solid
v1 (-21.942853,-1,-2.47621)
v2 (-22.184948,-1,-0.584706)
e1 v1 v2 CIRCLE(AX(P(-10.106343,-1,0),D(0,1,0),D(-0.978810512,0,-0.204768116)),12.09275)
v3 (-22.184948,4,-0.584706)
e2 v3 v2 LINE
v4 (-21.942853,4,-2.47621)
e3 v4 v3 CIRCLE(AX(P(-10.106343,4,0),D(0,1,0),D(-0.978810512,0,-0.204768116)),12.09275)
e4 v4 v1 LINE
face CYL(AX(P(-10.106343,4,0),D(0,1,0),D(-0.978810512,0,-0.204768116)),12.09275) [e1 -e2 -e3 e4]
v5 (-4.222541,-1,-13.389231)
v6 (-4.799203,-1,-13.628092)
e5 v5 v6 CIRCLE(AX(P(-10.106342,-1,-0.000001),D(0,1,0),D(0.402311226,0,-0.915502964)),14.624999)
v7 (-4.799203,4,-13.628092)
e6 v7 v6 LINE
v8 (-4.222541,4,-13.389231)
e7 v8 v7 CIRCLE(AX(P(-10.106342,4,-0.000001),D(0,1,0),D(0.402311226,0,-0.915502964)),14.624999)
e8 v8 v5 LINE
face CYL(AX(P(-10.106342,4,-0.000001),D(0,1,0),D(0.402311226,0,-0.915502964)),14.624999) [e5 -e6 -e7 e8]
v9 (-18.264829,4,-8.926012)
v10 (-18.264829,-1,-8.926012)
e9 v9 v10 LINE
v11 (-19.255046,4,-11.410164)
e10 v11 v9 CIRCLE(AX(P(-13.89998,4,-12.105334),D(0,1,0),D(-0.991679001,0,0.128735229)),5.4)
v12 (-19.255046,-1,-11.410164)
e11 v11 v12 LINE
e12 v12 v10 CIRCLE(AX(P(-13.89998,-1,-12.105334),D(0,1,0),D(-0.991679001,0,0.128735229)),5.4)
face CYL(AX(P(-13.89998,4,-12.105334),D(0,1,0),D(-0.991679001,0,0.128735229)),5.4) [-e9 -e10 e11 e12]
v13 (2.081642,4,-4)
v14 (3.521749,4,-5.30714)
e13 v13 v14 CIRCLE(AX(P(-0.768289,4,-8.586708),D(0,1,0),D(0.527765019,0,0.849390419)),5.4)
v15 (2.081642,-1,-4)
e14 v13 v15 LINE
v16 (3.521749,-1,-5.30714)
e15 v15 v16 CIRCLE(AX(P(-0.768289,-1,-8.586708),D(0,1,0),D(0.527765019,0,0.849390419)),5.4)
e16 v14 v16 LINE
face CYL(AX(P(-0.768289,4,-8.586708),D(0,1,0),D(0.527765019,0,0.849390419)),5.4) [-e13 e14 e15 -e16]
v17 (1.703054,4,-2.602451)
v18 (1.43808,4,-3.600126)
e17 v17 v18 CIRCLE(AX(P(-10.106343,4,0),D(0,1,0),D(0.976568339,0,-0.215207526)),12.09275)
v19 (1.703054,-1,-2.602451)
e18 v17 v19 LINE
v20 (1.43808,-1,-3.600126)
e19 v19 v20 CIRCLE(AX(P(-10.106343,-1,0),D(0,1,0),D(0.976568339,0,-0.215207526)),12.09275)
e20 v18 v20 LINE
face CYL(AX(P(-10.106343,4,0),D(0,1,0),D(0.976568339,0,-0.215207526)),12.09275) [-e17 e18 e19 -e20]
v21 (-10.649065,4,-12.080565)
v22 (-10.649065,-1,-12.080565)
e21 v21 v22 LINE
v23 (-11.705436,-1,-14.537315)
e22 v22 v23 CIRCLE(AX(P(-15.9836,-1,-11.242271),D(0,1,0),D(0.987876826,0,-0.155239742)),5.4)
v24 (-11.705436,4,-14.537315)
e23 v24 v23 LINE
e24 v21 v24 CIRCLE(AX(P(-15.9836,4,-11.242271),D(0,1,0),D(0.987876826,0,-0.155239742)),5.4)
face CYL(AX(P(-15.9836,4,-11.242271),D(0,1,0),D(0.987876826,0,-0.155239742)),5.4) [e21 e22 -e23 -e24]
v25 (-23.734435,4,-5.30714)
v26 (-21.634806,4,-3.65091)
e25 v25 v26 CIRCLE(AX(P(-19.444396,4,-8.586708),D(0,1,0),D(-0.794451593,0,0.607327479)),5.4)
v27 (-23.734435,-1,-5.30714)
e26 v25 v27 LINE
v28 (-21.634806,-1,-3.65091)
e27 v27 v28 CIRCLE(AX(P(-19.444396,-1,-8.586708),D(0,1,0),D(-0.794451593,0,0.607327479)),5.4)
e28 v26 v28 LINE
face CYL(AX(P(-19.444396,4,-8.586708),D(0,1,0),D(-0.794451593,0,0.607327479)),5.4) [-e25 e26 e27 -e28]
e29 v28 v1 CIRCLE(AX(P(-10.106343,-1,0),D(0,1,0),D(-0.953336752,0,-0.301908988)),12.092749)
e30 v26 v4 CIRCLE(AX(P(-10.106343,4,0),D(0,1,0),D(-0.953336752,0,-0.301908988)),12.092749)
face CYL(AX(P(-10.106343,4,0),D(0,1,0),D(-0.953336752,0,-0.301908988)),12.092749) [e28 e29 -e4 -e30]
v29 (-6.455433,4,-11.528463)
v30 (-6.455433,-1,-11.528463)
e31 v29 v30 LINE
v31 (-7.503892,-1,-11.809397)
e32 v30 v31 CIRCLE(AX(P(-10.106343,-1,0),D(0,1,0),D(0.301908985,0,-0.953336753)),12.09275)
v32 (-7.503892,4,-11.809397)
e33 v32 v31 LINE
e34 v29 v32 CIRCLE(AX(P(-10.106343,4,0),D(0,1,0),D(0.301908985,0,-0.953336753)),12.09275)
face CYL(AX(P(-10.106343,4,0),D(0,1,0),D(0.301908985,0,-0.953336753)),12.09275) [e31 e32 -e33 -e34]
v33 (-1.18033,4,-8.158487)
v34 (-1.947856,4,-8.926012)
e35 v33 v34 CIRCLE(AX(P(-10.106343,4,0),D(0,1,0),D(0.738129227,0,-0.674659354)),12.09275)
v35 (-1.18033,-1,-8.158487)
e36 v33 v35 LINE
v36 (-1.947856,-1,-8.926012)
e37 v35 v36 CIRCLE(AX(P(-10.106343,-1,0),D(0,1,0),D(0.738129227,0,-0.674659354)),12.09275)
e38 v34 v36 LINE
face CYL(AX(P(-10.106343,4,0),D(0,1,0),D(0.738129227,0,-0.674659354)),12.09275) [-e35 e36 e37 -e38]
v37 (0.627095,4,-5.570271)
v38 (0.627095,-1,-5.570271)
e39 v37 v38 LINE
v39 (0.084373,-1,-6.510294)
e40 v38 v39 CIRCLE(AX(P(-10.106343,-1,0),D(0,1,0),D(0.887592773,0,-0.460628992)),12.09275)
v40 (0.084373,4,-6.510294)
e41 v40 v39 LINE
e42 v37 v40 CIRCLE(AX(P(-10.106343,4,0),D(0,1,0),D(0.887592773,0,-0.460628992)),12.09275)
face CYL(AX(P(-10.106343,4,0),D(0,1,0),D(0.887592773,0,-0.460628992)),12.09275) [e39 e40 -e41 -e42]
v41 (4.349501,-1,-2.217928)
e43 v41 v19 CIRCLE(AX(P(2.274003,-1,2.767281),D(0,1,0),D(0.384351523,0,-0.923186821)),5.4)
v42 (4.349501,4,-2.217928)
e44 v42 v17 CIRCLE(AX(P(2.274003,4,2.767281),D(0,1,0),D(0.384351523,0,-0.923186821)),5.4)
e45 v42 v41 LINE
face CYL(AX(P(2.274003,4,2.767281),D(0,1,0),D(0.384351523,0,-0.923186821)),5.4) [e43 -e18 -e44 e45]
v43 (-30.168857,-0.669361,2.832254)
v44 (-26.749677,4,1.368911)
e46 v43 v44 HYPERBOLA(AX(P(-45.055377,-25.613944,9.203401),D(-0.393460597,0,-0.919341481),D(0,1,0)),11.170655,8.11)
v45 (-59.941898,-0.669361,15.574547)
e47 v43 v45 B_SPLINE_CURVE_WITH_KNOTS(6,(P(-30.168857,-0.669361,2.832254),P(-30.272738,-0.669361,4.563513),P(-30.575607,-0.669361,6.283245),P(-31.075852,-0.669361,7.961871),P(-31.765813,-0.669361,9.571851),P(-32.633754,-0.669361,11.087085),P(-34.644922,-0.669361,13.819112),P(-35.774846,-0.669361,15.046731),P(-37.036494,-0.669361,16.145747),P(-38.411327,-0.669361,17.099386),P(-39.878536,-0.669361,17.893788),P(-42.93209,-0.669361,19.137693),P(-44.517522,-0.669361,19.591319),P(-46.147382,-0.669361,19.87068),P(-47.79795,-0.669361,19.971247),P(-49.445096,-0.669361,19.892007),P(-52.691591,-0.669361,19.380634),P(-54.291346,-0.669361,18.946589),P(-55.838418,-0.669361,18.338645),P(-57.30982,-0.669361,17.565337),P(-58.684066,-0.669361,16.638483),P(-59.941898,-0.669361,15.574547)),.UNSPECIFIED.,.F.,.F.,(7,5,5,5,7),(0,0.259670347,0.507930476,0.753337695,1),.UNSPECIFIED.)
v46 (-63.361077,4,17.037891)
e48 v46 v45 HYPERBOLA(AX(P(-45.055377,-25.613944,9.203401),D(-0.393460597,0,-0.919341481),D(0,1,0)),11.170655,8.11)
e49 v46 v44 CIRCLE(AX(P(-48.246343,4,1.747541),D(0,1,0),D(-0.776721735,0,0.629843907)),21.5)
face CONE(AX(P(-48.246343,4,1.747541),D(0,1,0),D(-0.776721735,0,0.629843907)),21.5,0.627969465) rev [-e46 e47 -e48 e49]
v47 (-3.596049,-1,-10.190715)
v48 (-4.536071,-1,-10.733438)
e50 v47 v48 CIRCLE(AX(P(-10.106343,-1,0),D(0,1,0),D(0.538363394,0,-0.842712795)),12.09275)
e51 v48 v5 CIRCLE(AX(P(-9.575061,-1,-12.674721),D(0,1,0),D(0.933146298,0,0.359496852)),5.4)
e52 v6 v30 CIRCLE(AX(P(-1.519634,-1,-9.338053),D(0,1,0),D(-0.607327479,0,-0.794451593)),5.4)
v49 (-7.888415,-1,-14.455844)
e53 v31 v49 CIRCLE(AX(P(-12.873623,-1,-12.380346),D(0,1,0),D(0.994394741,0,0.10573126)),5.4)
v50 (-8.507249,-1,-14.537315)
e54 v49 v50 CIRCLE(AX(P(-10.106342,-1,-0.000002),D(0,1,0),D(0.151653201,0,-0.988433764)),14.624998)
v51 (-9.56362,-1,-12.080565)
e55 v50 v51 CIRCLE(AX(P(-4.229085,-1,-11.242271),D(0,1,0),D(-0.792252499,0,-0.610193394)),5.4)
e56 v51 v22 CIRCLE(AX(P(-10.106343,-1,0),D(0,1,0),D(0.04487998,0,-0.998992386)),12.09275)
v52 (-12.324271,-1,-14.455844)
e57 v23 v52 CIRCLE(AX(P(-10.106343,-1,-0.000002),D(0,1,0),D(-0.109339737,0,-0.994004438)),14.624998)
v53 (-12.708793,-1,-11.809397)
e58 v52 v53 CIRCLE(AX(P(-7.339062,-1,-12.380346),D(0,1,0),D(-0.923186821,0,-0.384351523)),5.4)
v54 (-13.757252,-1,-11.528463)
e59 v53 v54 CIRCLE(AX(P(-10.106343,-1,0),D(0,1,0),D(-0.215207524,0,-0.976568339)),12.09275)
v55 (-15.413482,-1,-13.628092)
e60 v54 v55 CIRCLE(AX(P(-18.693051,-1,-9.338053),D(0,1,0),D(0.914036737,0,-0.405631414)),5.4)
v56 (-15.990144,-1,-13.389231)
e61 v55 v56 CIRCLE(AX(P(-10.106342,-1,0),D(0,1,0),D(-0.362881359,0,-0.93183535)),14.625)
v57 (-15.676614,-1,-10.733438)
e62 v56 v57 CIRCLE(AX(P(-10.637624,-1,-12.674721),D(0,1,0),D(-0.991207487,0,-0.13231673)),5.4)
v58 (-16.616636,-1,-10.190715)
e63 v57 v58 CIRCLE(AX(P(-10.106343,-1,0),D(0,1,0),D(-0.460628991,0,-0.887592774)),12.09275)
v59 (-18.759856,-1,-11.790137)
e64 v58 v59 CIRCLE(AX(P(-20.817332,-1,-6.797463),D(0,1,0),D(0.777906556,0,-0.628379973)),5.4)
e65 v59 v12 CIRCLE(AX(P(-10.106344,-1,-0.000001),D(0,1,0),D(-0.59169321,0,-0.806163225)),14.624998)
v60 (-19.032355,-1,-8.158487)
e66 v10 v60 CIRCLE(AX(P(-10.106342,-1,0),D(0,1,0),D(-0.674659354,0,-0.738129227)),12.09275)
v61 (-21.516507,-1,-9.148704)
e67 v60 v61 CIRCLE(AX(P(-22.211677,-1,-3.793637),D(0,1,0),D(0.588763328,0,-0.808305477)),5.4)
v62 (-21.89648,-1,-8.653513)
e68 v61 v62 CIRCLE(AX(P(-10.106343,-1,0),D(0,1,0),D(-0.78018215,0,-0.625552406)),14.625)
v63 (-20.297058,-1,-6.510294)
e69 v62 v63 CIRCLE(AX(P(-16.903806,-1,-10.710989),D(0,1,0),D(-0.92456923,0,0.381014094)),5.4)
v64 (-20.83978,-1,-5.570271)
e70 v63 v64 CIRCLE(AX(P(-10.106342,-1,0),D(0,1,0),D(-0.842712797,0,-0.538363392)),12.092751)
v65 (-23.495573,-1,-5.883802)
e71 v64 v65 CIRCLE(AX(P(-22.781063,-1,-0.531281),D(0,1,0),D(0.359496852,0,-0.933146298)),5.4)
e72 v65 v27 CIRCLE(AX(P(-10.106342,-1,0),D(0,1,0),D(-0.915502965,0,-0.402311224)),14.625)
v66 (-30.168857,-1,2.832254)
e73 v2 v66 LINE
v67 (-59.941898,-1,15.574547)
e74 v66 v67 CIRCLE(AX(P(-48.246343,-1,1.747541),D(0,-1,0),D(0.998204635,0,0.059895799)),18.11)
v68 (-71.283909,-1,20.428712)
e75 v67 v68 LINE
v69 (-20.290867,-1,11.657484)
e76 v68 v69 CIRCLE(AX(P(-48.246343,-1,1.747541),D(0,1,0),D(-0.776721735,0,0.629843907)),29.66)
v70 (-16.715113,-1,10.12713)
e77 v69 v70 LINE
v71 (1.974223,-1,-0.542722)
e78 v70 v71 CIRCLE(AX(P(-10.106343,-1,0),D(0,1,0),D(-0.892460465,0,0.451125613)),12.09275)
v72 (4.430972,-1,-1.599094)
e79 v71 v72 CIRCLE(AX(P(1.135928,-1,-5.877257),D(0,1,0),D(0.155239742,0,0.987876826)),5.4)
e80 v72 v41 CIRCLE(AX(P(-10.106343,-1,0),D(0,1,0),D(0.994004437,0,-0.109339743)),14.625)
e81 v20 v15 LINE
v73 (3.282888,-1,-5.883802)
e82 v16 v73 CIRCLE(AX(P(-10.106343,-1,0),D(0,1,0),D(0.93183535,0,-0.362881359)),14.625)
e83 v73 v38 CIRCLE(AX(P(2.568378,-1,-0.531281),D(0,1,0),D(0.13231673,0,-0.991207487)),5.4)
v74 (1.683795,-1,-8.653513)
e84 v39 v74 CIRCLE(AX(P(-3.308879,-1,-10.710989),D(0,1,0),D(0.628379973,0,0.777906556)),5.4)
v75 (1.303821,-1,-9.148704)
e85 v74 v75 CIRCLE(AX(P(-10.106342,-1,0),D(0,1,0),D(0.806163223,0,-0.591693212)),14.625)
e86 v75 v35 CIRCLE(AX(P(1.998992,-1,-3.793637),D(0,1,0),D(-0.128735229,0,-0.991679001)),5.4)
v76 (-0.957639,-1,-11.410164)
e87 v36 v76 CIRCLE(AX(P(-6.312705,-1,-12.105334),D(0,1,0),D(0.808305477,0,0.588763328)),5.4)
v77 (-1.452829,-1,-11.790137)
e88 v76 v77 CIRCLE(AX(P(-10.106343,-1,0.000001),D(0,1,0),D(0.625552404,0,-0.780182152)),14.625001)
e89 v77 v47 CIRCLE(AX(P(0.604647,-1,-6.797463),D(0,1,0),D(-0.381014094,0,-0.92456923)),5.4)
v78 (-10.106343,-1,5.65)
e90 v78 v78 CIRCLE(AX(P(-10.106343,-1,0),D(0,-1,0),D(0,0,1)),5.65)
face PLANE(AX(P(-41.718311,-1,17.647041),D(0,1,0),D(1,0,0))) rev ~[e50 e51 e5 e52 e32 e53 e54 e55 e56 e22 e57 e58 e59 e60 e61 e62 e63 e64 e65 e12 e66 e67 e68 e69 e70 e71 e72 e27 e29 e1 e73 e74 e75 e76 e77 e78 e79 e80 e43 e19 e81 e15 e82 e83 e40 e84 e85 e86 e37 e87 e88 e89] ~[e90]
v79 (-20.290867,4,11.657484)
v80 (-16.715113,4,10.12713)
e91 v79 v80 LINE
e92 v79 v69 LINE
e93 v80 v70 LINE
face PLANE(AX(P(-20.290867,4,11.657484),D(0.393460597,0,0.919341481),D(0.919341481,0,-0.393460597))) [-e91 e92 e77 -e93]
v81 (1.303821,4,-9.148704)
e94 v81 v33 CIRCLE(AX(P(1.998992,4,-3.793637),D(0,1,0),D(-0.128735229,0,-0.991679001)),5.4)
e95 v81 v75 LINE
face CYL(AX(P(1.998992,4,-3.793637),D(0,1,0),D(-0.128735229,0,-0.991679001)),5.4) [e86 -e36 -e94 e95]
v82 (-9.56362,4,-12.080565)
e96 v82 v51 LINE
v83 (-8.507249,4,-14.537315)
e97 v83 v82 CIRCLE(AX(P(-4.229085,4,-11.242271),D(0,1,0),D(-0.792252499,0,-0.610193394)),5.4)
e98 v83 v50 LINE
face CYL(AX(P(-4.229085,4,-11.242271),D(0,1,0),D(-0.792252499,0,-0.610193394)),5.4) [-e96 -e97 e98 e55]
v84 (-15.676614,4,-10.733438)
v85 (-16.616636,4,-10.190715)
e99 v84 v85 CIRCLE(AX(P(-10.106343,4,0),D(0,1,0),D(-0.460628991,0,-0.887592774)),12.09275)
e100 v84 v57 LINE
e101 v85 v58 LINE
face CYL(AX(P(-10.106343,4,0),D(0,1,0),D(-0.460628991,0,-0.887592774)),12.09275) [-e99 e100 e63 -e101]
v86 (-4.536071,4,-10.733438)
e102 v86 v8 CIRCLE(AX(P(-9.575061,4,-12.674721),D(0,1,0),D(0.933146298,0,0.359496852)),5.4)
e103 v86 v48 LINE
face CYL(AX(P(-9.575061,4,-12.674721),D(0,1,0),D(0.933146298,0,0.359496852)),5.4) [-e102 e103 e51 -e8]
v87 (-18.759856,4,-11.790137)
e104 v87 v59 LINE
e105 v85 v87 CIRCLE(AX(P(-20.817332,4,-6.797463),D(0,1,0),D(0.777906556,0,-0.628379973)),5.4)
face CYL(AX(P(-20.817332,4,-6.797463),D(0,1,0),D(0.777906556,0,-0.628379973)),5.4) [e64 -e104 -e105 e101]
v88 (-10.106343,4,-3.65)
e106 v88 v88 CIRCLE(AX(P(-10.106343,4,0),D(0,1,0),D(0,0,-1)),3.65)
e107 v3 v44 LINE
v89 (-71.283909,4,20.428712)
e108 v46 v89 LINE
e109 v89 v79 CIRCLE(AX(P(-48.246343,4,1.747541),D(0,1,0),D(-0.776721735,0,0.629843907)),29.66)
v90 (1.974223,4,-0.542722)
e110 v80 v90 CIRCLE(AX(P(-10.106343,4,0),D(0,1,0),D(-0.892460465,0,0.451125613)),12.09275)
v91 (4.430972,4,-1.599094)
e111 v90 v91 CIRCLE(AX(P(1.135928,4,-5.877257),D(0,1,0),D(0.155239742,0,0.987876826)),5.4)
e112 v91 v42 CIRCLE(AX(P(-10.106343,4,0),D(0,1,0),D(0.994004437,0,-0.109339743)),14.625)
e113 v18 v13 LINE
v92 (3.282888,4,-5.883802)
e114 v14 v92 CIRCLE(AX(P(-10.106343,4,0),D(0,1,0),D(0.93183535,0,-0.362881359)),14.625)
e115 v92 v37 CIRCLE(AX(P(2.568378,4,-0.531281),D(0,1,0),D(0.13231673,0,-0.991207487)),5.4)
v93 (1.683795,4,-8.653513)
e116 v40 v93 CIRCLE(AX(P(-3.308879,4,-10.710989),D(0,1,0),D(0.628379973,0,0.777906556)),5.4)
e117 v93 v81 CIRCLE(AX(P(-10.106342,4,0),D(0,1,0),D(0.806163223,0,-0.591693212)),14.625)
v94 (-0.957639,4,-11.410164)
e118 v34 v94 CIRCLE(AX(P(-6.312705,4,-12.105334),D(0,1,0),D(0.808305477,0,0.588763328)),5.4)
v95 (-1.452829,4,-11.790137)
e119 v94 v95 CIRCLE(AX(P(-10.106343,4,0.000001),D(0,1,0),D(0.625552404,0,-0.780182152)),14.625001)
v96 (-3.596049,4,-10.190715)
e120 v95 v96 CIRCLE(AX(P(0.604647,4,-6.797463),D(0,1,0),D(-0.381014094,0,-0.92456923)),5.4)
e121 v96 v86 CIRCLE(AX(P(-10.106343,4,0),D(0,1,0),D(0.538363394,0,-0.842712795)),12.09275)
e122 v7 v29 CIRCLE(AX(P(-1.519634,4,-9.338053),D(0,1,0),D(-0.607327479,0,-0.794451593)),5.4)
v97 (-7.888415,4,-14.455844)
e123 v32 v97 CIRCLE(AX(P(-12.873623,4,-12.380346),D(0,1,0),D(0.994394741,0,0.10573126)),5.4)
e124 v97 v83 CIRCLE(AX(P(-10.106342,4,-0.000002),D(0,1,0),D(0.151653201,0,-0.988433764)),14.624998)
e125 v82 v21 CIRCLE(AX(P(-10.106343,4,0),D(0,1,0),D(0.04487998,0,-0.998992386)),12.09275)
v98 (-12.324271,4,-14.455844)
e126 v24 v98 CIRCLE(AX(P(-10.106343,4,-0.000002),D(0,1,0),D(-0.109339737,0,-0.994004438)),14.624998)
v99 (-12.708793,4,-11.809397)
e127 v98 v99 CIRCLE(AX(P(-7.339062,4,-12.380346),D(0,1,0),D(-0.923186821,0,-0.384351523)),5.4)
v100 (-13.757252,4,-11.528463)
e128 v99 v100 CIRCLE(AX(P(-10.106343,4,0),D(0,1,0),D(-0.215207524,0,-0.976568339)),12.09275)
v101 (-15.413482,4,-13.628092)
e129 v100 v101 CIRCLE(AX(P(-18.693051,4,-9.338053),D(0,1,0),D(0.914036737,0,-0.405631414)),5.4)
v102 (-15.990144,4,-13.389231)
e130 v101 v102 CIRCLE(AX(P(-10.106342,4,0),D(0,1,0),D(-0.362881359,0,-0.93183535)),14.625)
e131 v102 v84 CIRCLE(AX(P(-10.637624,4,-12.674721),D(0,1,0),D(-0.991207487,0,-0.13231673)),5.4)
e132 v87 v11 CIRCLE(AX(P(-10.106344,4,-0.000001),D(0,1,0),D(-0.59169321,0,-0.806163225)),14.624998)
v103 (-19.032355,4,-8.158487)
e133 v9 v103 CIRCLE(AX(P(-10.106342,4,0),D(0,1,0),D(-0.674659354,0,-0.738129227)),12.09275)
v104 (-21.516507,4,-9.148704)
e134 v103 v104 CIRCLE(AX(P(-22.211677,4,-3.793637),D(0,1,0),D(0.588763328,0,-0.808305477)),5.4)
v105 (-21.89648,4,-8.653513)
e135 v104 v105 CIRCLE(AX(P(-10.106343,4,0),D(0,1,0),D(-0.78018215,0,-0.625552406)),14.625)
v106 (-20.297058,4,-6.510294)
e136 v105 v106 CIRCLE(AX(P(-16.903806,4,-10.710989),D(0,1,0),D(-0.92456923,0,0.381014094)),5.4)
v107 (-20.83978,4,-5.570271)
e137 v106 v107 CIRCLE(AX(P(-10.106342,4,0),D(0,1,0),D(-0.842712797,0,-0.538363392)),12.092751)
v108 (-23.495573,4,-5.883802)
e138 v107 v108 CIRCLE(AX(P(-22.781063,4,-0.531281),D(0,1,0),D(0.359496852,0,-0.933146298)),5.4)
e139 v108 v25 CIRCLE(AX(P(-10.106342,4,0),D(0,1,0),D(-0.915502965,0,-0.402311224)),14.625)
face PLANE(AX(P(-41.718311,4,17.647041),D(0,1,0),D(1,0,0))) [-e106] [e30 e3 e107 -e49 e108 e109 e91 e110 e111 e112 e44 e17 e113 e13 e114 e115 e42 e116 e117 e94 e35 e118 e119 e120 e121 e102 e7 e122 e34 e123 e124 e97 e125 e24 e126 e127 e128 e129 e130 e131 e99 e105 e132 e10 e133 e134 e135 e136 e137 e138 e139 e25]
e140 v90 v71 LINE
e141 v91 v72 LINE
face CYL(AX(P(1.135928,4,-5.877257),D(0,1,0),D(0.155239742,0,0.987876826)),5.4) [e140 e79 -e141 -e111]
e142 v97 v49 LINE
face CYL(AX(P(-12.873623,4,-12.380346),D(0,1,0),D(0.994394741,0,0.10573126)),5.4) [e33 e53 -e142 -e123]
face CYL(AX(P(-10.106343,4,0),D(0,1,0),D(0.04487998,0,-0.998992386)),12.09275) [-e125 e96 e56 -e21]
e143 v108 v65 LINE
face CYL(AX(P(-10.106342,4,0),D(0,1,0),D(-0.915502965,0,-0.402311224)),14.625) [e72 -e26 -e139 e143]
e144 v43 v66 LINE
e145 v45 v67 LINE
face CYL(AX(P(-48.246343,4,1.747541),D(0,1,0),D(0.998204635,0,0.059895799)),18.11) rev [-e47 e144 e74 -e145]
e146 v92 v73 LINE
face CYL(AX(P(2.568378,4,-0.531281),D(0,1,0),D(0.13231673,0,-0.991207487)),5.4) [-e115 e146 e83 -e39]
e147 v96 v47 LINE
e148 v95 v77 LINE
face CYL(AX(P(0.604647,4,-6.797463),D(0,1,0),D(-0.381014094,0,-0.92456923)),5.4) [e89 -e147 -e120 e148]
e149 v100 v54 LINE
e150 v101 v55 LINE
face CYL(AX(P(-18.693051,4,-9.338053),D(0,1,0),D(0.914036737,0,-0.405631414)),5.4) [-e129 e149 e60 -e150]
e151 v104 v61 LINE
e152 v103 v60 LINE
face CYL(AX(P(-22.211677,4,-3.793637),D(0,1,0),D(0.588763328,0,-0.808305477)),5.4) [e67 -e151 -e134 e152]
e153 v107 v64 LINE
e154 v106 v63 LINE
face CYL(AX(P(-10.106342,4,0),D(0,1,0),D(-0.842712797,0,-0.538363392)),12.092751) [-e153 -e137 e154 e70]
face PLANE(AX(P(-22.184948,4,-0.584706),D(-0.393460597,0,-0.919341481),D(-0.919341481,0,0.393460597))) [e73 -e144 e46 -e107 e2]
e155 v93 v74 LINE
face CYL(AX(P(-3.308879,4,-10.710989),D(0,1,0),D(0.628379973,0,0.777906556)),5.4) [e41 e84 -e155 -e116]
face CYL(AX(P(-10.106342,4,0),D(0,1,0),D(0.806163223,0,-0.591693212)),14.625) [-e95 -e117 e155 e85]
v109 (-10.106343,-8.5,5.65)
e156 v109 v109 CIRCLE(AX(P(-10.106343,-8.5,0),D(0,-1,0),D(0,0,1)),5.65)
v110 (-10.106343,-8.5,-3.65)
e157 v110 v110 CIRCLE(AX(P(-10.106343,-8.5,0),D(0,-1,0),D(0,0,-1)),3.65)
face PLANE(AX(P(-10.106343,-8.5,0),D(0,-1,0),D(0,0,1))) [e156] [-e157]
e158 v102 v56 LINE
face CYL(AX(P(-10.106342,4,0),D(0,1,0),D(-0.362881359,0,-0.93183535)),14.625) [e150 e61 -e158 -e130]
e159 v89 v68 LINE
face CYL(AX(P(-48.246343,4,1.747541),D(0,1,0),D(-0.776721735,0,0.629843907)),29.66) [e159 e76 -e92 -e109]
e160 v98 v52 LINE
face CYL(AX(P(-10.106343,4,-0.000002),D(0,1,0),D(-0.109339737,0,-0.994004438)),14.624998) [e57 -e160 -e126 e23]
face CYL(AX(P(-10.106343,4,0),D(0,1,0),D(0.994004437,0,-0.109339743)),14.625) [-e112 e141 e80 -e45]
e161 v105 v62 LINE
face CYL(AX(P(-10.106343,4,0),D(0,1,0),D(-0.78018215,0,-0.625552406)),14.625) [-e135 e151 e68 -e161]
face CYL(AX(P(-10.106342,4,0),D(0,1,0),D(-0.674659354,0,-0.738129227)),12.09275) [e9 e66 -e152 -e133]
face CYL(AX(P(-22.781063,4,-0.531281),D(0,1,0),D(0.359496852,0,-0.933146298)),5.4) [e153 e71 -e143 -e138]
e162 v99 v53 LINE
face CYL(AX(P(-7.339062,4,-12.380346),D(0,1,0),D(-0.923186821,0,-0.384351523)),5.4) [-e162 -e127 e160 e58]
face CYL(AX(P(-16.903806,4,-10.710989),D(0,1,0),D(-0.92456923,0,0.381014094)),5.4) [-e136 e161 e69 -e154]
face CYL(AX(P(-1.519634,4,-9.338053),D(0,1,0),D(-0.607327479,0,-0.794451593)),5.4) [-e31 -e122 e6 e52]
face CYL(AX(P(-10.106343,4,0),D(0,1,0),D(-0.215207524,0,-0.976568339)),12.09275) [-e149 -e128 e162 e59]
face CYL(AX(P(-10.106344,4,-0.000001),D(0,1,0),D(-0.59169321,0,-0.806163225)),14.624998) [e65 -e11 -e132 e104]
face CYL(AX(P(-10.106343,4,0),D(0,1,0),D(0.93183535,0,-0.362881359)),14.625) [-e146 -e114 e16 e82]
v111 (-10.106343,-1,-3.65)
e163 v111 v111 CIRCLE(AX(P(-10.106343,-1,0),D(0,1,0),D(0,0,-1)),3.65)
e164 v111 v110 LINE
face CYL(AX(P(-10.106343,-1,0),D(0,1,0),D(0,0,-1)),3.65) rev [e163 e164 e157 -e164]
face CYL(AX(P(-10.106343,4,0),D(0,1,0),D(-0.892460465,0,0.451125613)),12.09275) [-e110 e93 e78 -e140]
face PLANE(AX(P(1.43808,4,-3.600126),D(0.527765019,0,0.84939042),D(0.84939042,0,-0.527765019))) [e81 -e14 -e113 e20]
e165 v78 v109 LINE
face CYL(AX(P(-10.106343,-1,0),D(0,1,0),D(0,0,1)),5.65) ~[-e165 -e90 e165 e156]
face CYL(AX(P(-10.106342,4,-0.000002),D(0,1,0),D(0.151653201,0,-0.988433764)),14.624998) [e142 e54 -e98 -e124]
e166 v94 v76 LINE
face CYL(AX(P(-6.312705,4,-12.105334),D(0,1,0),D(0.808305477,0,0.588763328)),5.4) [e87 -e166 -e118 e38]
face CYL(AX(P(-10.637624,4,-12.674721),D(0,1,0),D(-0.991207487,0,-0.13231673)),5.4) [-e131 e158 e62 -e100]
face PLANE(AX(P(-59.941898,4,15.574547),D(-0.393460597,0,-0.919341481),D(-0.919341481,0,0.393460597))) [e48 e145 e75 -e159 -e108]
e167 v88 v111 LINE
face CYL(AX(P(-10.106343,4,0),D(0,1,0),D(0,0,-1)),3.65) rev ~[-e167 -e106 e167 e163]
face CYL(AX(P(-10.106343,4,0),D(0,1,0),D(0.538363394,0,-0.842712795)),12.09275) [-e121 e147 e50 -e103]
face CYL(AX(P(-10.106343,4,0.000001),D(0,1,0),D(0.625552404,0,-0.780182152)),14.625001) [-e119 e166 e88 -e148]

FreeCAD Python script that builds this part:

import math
import FreeCAD as App
import Part
import Sketcher

V = App.Vector
Q = App.Units.Quantity

doc = App.newDocument("Part")
params = doc.addObject("Spreadsheet::Sheet", "Params")
for row, (alias, value) in enumerate([
    ("sketch1_diameter", "7.3 mm"),
    ("sketch1_radius", "5.4 mm"),
    ("pad1_length", "5 mm"),
    ("sketch2_diameter", "11.3 mm"),
    ("sketch2_diameter2", "7.3 mm"),
    ("pad2_length", "7.5 mm"),
    ("sketch3_radius", "18.11 mm"),
    ("sketch3_radius2", "29.66 mm"),
    ("pad3_length", "5 mm"),
    ("sketch4_width", "3.8 mm"),
    ("groove_angle", "360 deg"),
], start=1):
    params.set(f"A{row}", alias)
    params.set(f"B{row}", "=" + value)
    params.setAlias(f"B{row}", alias)

body = doc.addObject("PartDesign::Body", "Body")

# Sketch on XZ plane
sketch1 = body.newObject("Sketcher::SketchObject", "Sketch")
sketch1.AttachmentSupport = (doc.getObject("XZ_Plane"), [""])
sketch1.MapMode = "FlatFace"
sketch1.AttachmentOffset = App.Placement(V(0, 0, -4), App.Rotation())
sketch1.addGeometry(Part.LineSegment(V(1.4, -3.6, 0), V(2.1, -4, 0)), False)
sketch1.addGeometry(Part.ArcOfCircle(Part.Circle(V(-0.8, -8.6, 0), V(0, 0, 1), 5.4), math.radians(37), math.radians(58)), False)
sketch1.addGeometry(Part.ArcOfCircle(Part.Circle(V(-10.1, 0, 0), V(0, 0, 1), 14.6), math.radians(-23.72), math.radians(-21.28)), False)
sketch1.addGeometry(Part.ArcOfCircle(Part.Circle(V(2.6, -0.5, 0), V(0, 0, 1), 5.4), math.radians(-111), math.radians(-82)), False)
sketch1.addGeometry(Part.ArcOfCircle(Part.Circle(V(-10.1, 0, 0), V(0, 0, 1), 12.1), math.radians(-32.57), math.radians(-27.43)), False)
sketch1.addGeometry(Part.ArcOfCircle(Part.Circle(V(-3.3, -10.7, 0), V(0, 0, 1), 5.4), math.radians(22), math.radians(51)), False)
sketch1.addGeometry(Part.ArcOfCircle(Part.Circle(V(-10.1, 0, 0), V(0, 0, 1), 14.6), math.radians(-38.72), math.radians(-36.28)), False)
sketch1.addGeometry(Part.ArcOfCircle(Part.Circle(V(2, -3.8, 0), V(0, 0, 1), 5.4), math.radians(-126), math.radians(-97)), False)
sketch1.addGeometry(Part.ArcOfCircle(Part.Circle(V(-10.1, 0, 0), V(0, 0, 1), 12.1), math.radians(-47.57), math.radians(-42.43)), False)
sketch1.addGeometry(Part.ArcOfCircle(Part.Circle(V(-6.3, -12.1, 0), V(0, 0, 1), 5.4), math.radians(7), math.radians(36)), False)
sketch1.addGeometry(Part.ArcOfCircle(Part.Circle(V(-10.1, 0, 0), V(0, 0, 1), 14.6), math.radians(-53.72), math.radians(-51.28)), False)
sketch1.addGeometry(Part.ArcOfCircle(Part.Circle(V(0.6, -6.8, 0), V(0, 0, 1), 5.4), math.radians(-141), math.radians(-112)), False)
sketch1.addGeometry(Part.ArcOfCircle(Part.Circle(V(-10.1, 0, 0), V(0, 0, 1), 12.1), math.radians(-62.57), math.radians(-57.43)), False)
sketch1.addGeometry(Part.ArcOfCircle(Part.Circle(V(-9.6, -12.7, 0), V(0, 0, 1), 5.4), math.radians(-8), math.radians(21)), False)
sketch1.addGeometry(Part.ArcOfCircle(Part.Circle(V(-10.1, 0, 0), V(0, 0, 1), 14.6), math.radians(-68.72), math.radians(-66.28)), False)
sketch1.addGeometry(Part.ArcOfCircle(Part.Circle(V(-1.5, -9.3, 0), V(0, 0, 1), 5.4), math.radians(-156), math.radians(-127)), False)
sketch1.addGeometry(Part.ArcOfCircle(Part.Circle(V(-10.1, 0, 0), V(0, 0, 1), 12.1), math.radians(-77.57), math.radians(-72.43)), False)
sketch1.addGeometry(Part.ArcOfCircle(Part.Circle(V(-12.9, -12.4, 0), V(0, 0, 1), 5.4), math.radians(-23), math.radians(6)), False)
sketch1.addGeometry(Part.ArcOfCircle(Part.Circle(V(-10.1, 0, 0), V(0, 0, 1), 14.6), math.radians(-83.72), math.radians(-81.28)), False)
sketch1.addGeometry(Part.ArcOfCircle(Part.Circle(V(-4.2, -11.2, 0), V(0, 0, 1), 5.4), math.radians(-171), math.radians(-142)), False)
sketch1.addGeometry(Part.ArcOfCircle(Part.Circle(V(-10.1, 0, 0), V(0, 0, 1), 12.1), math.radians(-92.57), math.radians(-87.43)), False)
sketch1.addGeometry(Part.ArcOfCircle(Part.Circle(V(-16, -11.2, 0), V(0, 0, 1), 5.4), math.radians(-38), math.radians(-9)), False)
sketch1.addGeometry(Part.ArcOfCircle(Part.Circle(V(-10.1, 0, 0), V(0, 0, 1), 14.6), math.radians(-98.72), math.radians(-96.28)), False)
sketch1.addGeometry(Part.ArcOfCircle(Part.Circle(V(-7.3, -12.4, 0), V(0, 0, 1), 5.4), math.radians(174), math.radians(203)), False)
sketch1.addGeometry(Part.ArcOfCircle(Part.Circle(V(-10.1, 0, 0), V(0, 0, 1), 12.1), math.radians(-107.57), math.radians(-102.43)), False)
sketch1.addGeometry(Part.ArcOfCircle(Part.Circle(V(-18.7, -9.3, 0), V(0, 0, 1), 5.4), math.radians(-53), math.radians(-24)), False)
sketch1.addGeometry(Part.ArcOfCircle(Part.Circle(V(-10.1, 0, 0), V(0, 0, 1), 14.6), math.radians(-113.72), math.radians(-111.28)), False)
sketch1.addGeometry(Part.ArcOfCircle(Part.Circle(V(-10.6, -12.7, 0), V(0, 0, 1), 5.4), math.radians(159), math.radians(188)), False)
sketch1.addGeometry(Part.ArcOfCircle(Part.Circle(V(-10.1, 0, 0), V(0, 0, 1), 12.1), math.radians(-122.57), math.radians(-117.43)), False)
sketch1.addGeometry(Part.ArcOfCircle(Part.Circle(V(-20.8, -6.8, 0), V(0, 0, 1), 5.4), math.radians(-68), math.radians(-39)), False)
sketch1.addGeometry(Part.ArcOfCircle(Part.Circle(V(-10.1, 0, 0), V(0, 0, 1), 14.6), math.radians(-128.72), math.radians(-126.28)), False)
sketch1.addGeometry(Part.ArcOfCircle(Part.Circle(V(-13.9, -12.1, 0), V(0, 0, 1), 5.4), math.radians(144), math.radians(173)), False)
sketch1.addGeometry(Part.ArcOfCircle(Part.Circle(V(-10.1, 0, 0), V(0, 0, 1), 12.1), math.radians(-137.57), math.radians(-132.43)), False)
sketch1.addGeometry(Part.ArcOfCircle(Part.Circle(V(-22.2, -3.8, 0), V(0, 0, 1), 5.4), math.radians(-83), math.radians(-54)), False)
sketch1.addGeometry(Part.ArcOfCircle(Part.Circle(V(-10.1, 0, 0), V(0, 0, 1), 14.6), math.radians(-143.72), math.radians(-141.28)), False)
sketch1.addGeometry(Part.ArcOfCircle(Part.Circle(V(-16.9, -10.7, 0), V(0, 0, 1), 5.4), math.radians(129), math.radians(158)), False)
sketch1.addGeometry(Part.ArcOfCircle(Part.Circle(V(-10.1, 0, 0), V(0, 0, 1), 12.1), math.radians(-152.57), math.radians(-147.43)), False)
sketch1.addGeometry(Part.ArcOfCircle(Part.Circle(V(-22.8, -0.5, 0), V(0, 0, 1), 5.4), math.radians(-98), math.radians(-69)), False)
sketch1.addGeometry(Part.ArcOfCircle(Part.Circle(V(-10.1, 0, 0), V(0, 0, 1), 14.6), math.radians(-158.72), math.radians(-156.28)), False)
sketch1.addGeometry(Part.ArcOfCircle(Part.Circle(V(-19.4, -8.6, 0), V(0, 0, 1), 5.4), math.radians(114), math.radians(143)), False)
sketch1.addGeometry(Part.ArcOfCircle(Part.Circle(V(-10.1, 0, 0), V(0, 0, 1), 12.1), math.radians(-168.18), math.radians(-162.43)), False)
sketch1.addGeometry(Part.ArcOfCircle(Part.Circle(V(-10.1, 0, 0), V(0, 0, 1), 12.1), math.radians(153), math.radians(192)), False)
sketch1.addGeometry(Part.ArcOfCircle(Part.Circle(V(-10.1, 0, 0), V(0, 0, 1), 12.1), math.radians(-3), math.radians(153)), False)
sketch1.addGeometry(Part.ArcOfCircle(Part.Circle(V(1.1, -5.9, 0), V(0, 0, 1), 5.4), math.radians(52), math.radians(81)), False)
sketch1.addGeometry(Part.ArcOfCircle(Part.Circle(V(-10.1, 0, 0), V(0, 0, 1), 14.6), math.radians(-8.72), math.radians(-6.28)), False)
sketch1.addGeometry(Part.ArcOfCircle(Part.Circle(V(2.3, 2.8, 0), V(0, 0, 1), 5.4), math.radians(-96), math.radians(-67)), False)
sketch1.addGeometry(Part.ArcOfCircle(Part.Circle(V(-10.1, 0, 0), V(0, 0, 1), 12.1), math.radians(-17.32), math.radians(-12.43)), False)
sketch1.addGeometry(Part.Circle(V(-10.1, 0, 0), V(0, 0, 1), 3.6), False)
sketch1.addConstraint(Sketcher.Constraint("Tangent", 0, 2, 1, 2))
sketch1.addConstraint(Sketcher.Constraint("Coincident", 1, 1, 2, 2))
sketch1.addConstraint(Sketcher.Constraint("Coincident", 2, 1, 3, 2))
sketch1.addConstraint(Sketcher.Constraint("Coincident", 3, 1, 4, 2))
sketch1.addConstraint(Sketcher.Constraint("Coincident", 4, 1, 5, 2))
sketch1.addConstraint(Sketcher.Constraint("Coincident", 5, 1, 6, 2))
sketch1.addConstraint(Sketcher.Constraint("Coincident", 6, 1, 7, 2))
sketch1.addConstraint(Sketcher.Constraint("Coincident", 7, 1, 8, 2))
sketch1.addConstraint(Sketcher.Constraint("Coincident", 8, 1, 9, 2))
sketch1.addConstraint(Sketcher.Constraint("Coincident", 9, 1, 10, 2))
sketch1.addConstraint(Sketcher.Constraint("Coincident", 10, 1, 11, 2))
sketch1.addConstraint(Sketcher.Constraint("Coincident", 11, 1, 12, 2))
sketch1.addConstraint(Sketcher.Constraint("Coincident", 12, 1, 13, 2))
sketch1.addConstraint(Sketcher.Constraint("Coincident", 13, 1, 14, 2))
sketch1.addConstraint(Sketcher.Constraint("Coincident", 14, 1, 15, 2))
sketch1.addConstraint(Sketcher.Constraint("Coincident", 15, 1, 16, 2))
sketch1.addConstraint(Sketcher.Constraint("Coincident", 16, 1, 17, 2))
sketch1.addConstraint(Sketcher.Constraint("Coincident", 17, 1, 18, 2))
sketch1.addConstraint(Sketcher.Constraint("Coincident", 18, 1, 19, 2))
sketch1.addConstraint(Sketcher.Constraint("Coincident", 19, 1, 20, 2))
sketch1.addConstraint(Sketcher.Constraint("Coincident", 20, 1, 21, 2))
sketch1.addConstraint(Sketcher.Constraint("Coincident", 21, 1, 22, 2))
sketch1.addConstraint(Sketcher.Constraint("Coincident", 22, 1, 23, 2))
sketch1.addConstraint(Sketcher.Constraint("Coincident", 23, 1, 24, 2))
sketch1.addConstraint(Sketcher.Constraint("Coincident", 24, 1, 25, 2))
sketch1.addConstraint(Sketcher.Constraint("Coincident", 25, 1, 26, 2))
sketch1.addConstraint(Sketcher.Constraint("Coincident", 26, 1, 27, 2))
sketch1.addConstraint(Sketcher.Constraint("Coincident", 27, 1, 28, 2))
sketch1.addConstraint(Sketcher.Constraint("Coincident", 28, 1, 29, 2))
sketch1.addConstraint(Sketcher.Constraint("Coincident", 29, 1, 30, 2))
sketch1.addConstraint(Sketcher.Constraint("Coincident", 30, 1, 31, 2))
sketch1.addConstraint(Sketcher.Constraint("Coincident", 31, 1, 32, 2))
sketch1.addConstraint(Sketcher.Constraint("Coincident", 32, 1, 33, 2))
sketch1.addConstraint(Sketcher.Constraint("Coincident", 33, 1, 34, 2))
sketch1.addConstraint(Sketcher.Constraint("Coincident", 34, 1, 35, 2))
sketch1.addConstraint(Sketcher.Constraint("Coincident", 35, 1, 36, 2))
sketch1.addConstraint(Sketcher.Constraint("Coincident", 36, 1, 37, 2))
sketch1.addConstraint(Sketcher.Constraint("Coincident", 37, 1, 38, 2))
sketch1.addConstraint(Sketcher.Constraint("Coincident", 38, 1, 39, 2))
sketch1.addConstraint(Sketcher.Constraint("Coincident", 39, 1, 40, 2))
sketch1.addConstraint(Sketcher.Constraint("Tangent", 40, 1, 41, 2))
sketch1.addConstraint(Sketcher.Constraint("Tangent", 41, 1, 42, 2))
sketch1.addConstraint(Sketcher.Constraint("Coincident", 42, 1, 43, 2))
sketch1.addConstraint(Sketcher.Constraint("Coincident", 43, 1, 44, 2))
sketch1.addConstraint(Sketcher.Constraint("Coincident", 44, 1, 45, 2))
sketch1.addConstraint(Sketcher.Constraint("Coincident", 45, 1, 46, 2))
sketch1.addConstraint(Sketcher.Constraint("Coincident", 46, 1, 0, 1))
sketch1.addConstraint(Sketcher.Constraint("Coincident", 4, 3, 2, 3))
sketch1.addConstraint(Sketcher.Constraint("Coincident", 6, 3, 2, 3))
sketch1.addConstraint(Sketcher.Constraint("Coincident", 8, 3, 2, 3))
sketch1.addConstraint(Sketcher.Constraint("Coincident", 10, 3, 2, 3))
sketch1.addConstraint(Sketcher.Constraint("Coincident", 12, 3, 2, 3))
sketch1.addConstraint(Sketcher.Constraint("Coincident", 14, 3, 2, 3))
sketch1.addConstraint(Sketcher.Constraint("Coincident", 16, 3, 2, 3))
sketch1.addConstraint(Sketcher.Constraint("Coincident", 18, 3, 2, 3))
sketch1.addConstraint(Sketcher.Constraint("Coincident", 20, 3, 2, 3))
sketch1.addConstraint(Sketcher.Constraint("Coincident", 22, 3, 2, 3))
sketch1.addConstraint(Sketcher.Constraint("Coincident", 24, 3, 2, 3))
sketch1.addConstraint(Sketcher.Constraint("Coincident", 26, 3, 2, 3))
sketch1.addConstraint(Sketcher.Constraint("Coincident", 28, 3, 2, 3))
sketch1.addConstraint(Sketcher.Constraint("Coincident", 30, 3, 2, 3))
sketch1.addConstraint(Sketcher.Constraint("Coincident", 32, 3, 2, 3))
sketch1.addConstraint(Sketcher.Constraint("Coincident", 34, 3, 2, 3))
sketch1.addConstraint(Sketcher.Constraint("Coincident", 36, 3, 2, 3))
sketch1.addConstraint(Sketcher.Constraint("Coincident", 38, 3, 2, 3))
sketch1.addConstraint(Sketcher.Constraint("Coincident", 40, 3, 2, 3))
sketch1.addConstraint(Sketcher.Constraint("Coincident", 42, 3, 2, 3))
sketch1.addConstraint(Sketcher.Constraint("Coincident", 44, 3, 2, 3))
sketch1.addConstraint(Sketcher.Constraint("Coincident", 46, 3, 2, 3))
sketch1.addConstraint(Sketcher.Constraint("Coincident", 47, 3, 2, 3))
sketch1.addConstraint(Sketcher.Constraint("Equal", 1, 3))
sketch1.addConstraint(Sketcher.Constraint("Equal", 3, 5))
sketch1.addConstraint(Sketcher.Constraint("Equal", 2, 6))
sketch1.addConstraint(Sketcher.Constraint("Equal", 5, 7))
sketch1.addConstraint(Sketcher.Constraint("Equal", 4, 8))
sketch1.addConstraint(Sketcher.Constraint("Equal", 7, 9))
sketch1.addConstraint(Sketcher.Constraint("Equal", 6, 10))
sketch1.addConstraint(Sketcher.Constraint("Equal", 9, 11))
sketch1.addConstraint(Sketcher.Constraint("Equal", 8, 12))
sketch1.addConstraint(Sketcher.Constraint("Equal", 11, 13))
sketch1.addConstraint(Sketcher.Constraint("Equal", 6, 14))
sketch1.addConstraint(Sketcher.Constraint("Equal", 13, 15))
sketch1.addConstraint(Sketcher.Constraint("Equal", 12, 16))
sketch1.addConstraint(Sketcher.Constraint("Equal", 15, 17))
sketch1.addConstraint(Sketcher.Constraint("Equal", 14, 18))
sketch1.addConstraint(Sketcher.Constraint("Equal", 17, 19))
sketch1.addConstraint(Sketcher.Constraint("Equal", 16, 20))
sketch1.addConstraint(Sketcher.Constraint("Equal", 19, 21))
sketch1.addConstraint(Sketcher.Constraint("Equal", 18, 22))
sketch1.addConstraint(Sketcher.Constraint("Equal", 21, 23))
sketch1.addConstraint(Sketcher.Constraint("Equal", 20, 24))
sketch1.addConstraint(Sketcher.Constraint("Equal", 23, 25))
sketch1.addConstraint(Sketcher.Constraint("Equal", 14, 26))
sketch1.addConstraint(Sketcher.Constraint("Equal", 25, 27))
sketch1.addConstraint(Sketcher.Constraint("Equal", 24, 28))
sketch1.addConstraint(Sketcher.Constraint("Equal", 27, 29))
sketch1.addConstraint(Sketcher.Constraint("Equal", 26, 30))
sketch1.addConstraint(Sketcher.Constraint("Equal", 29, 31))
sketch1.addConstraint(Sketcher.Constraint("Equal", 28, 32))
sketch1.addConstraint(Sketcher.Constraint("Equal", 31, 33))
sketch1.addConstraint(Sketcher.Constraint("Equal", 30, 34))
sketch1.addConstraint(Sketcher.Constraint("Equal", 33, 35))
sketch1.addConstraint(Sketcher.Constraint("Equal", 32, 36))
sketch1.addConstraint(Sketcher.Constraint("Equal", 35, 37))
sketch1.addConstraint(Sketcher.Constraint("Equal", 34, 38))
sketch1.addConstraint(Sketcher.Constraint("Equal", 37, 39))
sketch1.addConstraint(Sketcher.Constraint("Equal", 36, 40))
sketch1.addConstraint(Sketcher.Constraint("Equal", 39, 43))
sketch1.addConstraint(Sketcher.Constraint("Equal", 38, 44))
sketch1.addConstraint(Sketcher.Constraint("Equal", 43, 45))
sketch1.addConstraint(Sketcher.Constraint("Equal", 42, 46))
sketch1.addConstraint(Sketcher.Constraint("PointOnObject", 2, 3, -1))
sketch1.addConstraint(Sketcher.Constraint("Horizontal", 19, 3, 21, 3))
sketch1.addConstraint(Sketcher.Constraint("Horizontal", 17, 3, 23, 3))
sketch1.addConstraint(Sketcher.Constraint("Horizontal", 15, 3, 25, 3))
sketch1.addConstraint(Sketcher.Constraint("Horizontal", 13, 3, 27, 3))
sketch1.addConstraint(Sketcher.Constraint("Horizontal", 11, 3, 29, 3))
sketch1.addConstraint(Sketcher.Constraint("Horizontal", 9, 3, 31, 3))
sketch1.addConstraint(Sketcher.Constraint("Horizontal", 7, 3, 33, 3))
sketch1.addConstraint(Sketcher.Constraint("Horizontal", 5, 3, 35, 3))
sketch1.addConstraint(Sketcher.Constraint("Horizontal", 3, 3, 37, 3))
sketch1.addConstraint(Sketcher.Constraint("Horizontal", 1, 3, 39, 3))
sketch1.addConstraint(Sketcher.Constraint("Horizontal", 19, 1, 20, 1))
sketch1.addConstraint(Sketcher.Constraint("Horizontal", 17, 1, 22, 1))
sketch1.addConstraint(Sketcher.Constraint("Horizontal", 15, 1, 24, 1))
sketch1.addConstraint(Sketcher.Constraint("Horizontal", 13, 1, 26, 1))
sketch1.addConstraint(Sketcher.Constraint("Horizontal", 11, 1, 28, 1))
sketch1.addConstraint(Sketcher.Constraint("Horizontal", 9, 1, 30, 1))
sketch1.addConstraint(Sketcher.Constraint("Horizontal", 7, 1, 32, 1))
sketch1.addConstraint(Sketcher.Constraint("Horizontal", 5, 1, 34, 1))
sketch1.addConstraint(Sketcher.Constraint("Horizontal", 3, 1, 36, 1))
sketch1.addConstraint(Sketcher.Constraint("Horizontal", 1, 1, 38, 1))
sketch1.addConstraint(Sketcher.Constraint("Diameter", 47, Q("7.3 mm")))
sketch1.addConstraint(Sketcher.Constraint("Radius", 1, Q("5.4 mm")))
sketch1.addConstraint(Sketcher.Constraint("DistanceY", 0, 2, -1, 1, Q("4 mm")))
sketch1.addConstraint(Sketcher.Constraint("Radius", 2, Q("14.625 mm")))
sketch1.addConstraint(Sketcher.Constraint("Radius", 4, Q("12.09275 mm")))
sketch1.addConstraint(Sketcher.Constraint("DistanceX", 21, 3, -1, 1, Q("15.9836 mm")))
sketch1.addConstraint(Sketcher.Constraint("DistanceY", 2, 1, -1, 1, Q("5.883802 mm")))
sketch1.addConstraint(Sketcher.Constraint("DistanceX", -1, 1, 44, 1, Q("4.349501 mm")))
sketch1.addConstraint(Sketcher.Constraint("DistanceX", 1, 3, -1, 1, Q("0.768289 mm")))
sketch1.addConstraint(Sketcher.Constraint("DistanceY", 1, 3, -1, 1, Q("8.586708 mm")))
sketch1.addConstraint(Sketcher.Constraint("DistanceY", 3, 3, -1, 1, Q("0.531281 mm")))
sketch1.addConstraint(Sketcher.Constraint("DistanceX", 5, 3, -1, 1, Q("3.308879 mm")))
sketch1.addConstraint(Sketcher.Constraint("DistanceY", 5, 3, -1, 1, Q("10.710989 mm")))
sketch1.addConstraint(Sketcher.Constraint("DistanceX", -1, 1, 7, 3, Q("1.998992 mm")))
sketch1.addConstraint(Sketcher.Constraint("DistanceX", 13, 3, -1, 1, Q("9.575061 mm")))
sketch1.addConstraint(Sketcher.Constraint("DistanceY", 13, 3, -1, 1, Q("12.674721 mm")))
sketch1.addConstraint(Sketcher.Constraint("DistanceY", 19, 3, -1, 1, Q("11.242271 mm")))
sketch1.addConstraint(Sketcher.Constraint("DistanceX", 23, 3, -1, 1, Q("7.339062 mm")))
sketch1.addConstraint(Sketcher.Constraint("DistanceX", 25, 3, -1, 1, Q("18.693051 mm")))
sketch1.addConstraint(Sketcher.Constraint("DistanceX", 29, 3, -1, 1, Q("20.817332 mm")))
sketch1.addConstraint(Sketcher.Constraint("DistanceX", 31, 3, -1, 1, Q("13.89998 mm")))
sketch1.addConstraint(Sketcher.Constraint("DistanceX", -1, 1, 43, 3, Q("1.135928 mm")))
sketch1.addConstraint(Sketcher.Constraint("DistanceY", -1, 1, 45, 3, Q("2.767281 mm")))
sketch1.addConstraint(Sketcher.Constraint("DistanceX", -1, 1, 1, 1, Q("3.521749 mm")))
sketch1.addConstraint(Sketcher.Constraint("DistanceX", -1, 1, 6, 1, Q("1.303821 mm")))
sketch1.addConstraint(Sketcher.Constraint("DistanceX", 9, 1, -1, 1, Q("0.957639 mm")))
sketch1.addConstraint(Sketcher.Constraint("DistanceX", 10, 1, -1, 1, Q("1.452829 mm")))
sketch1.addConstraint(Sketcher.Constraint("DistanceY", 14, 1, -1, 1, Q("13.628092 mm")))
sketch1.addConstraint(Sketcher.Constraint("DistanceX", 16, 1, -1, 1, Q("7.503892 mm")))
sketch1.addConstraint(Sketcher.Constraint("DistanceY", 40, 1, -1, 1, Q("2.47621 mm")))
sketch1.addConstraint(Sketcher.Constraint("DistanceY", -1, 1, 41, 1, Q("5.455349 mm")))
sketch1.addConstraint(Sketcher.Constraint("DistanceY", 43, 3, -1, 1, Q("5.877257 mm")))
sketch1.setExpression("Constraints[132]", "Params.sketch1_diameter")
sketch1.setExpression("Constraints[133]", "Params.sketch1_radius")
pad1 = body.newObject("PartDesign::Pad", "Pad")
pad1.Profile = sketch1
pad1.setExpression("Length", "Params.pad1_length")

# Sketch on XZ plane
sketch2 = body.newObject("Sketcher::SketchObject", "Sketch001")
sketch2.AttachmentSupport = (doc.getObject("XZ_Plane"), [""])
sketch2.MapMode = "FlatFace"
sketch2.AttachmentOffset = App.Placement(V(0, 0, 1), App.Rotation())
sketch2.addGeometry(Part.Circle(V(-10.1, 0, 0), V(0, 0, 1), 5.7), False)
sketch2.addGeometry(Part.Circle(V(-10.1, 0, 0), V(0, 0, 1), 3.6), False)
sketch2.addConstraint(Sketcher.Constraint("Coincident", 1, 3, 0, 3))
sketch2.addConstraint(Sketcher.Constraint("PointOnObject", 0, 3, -1))
sketch2.addConstraint(Sketcher.Constraint("Diameter", 0, Q("11.3 mm")))
sketch2.addConstraint(Sketcher.Constraint("Diameter", 1, Q("7.3 mm")))
sketch2.addConstraint(Sketcher.Constraint("DistanceX", 0, 3, -1, 1, Q("10.106343 mm")))
sketch2.setExpression("Constraints[2]", "Params.sketch2_diameter")
sketch2.setExpression("Constraints[3]", "Params.sketch2_diameter2")
pad2 = body.newObject("PartDesign::Pad", "Pad001")
pad2.Profile = sketch2
pad2.setExpression("Length", "Params.pad2_length")

# Sketch on XZ plane
sketch3 = body.newObject("Sketcher::SketchObject", "Sketch002")
sketch3.AttachmentSupport = (doc.getObject("XZ_Plane"), [""])
sketch3.MapMode = "FlatFace"
sketch3.AttachmentOffset = App.Placement(V(0, 0, -4), App.Rotation())
sketch3.addGeometry(Part.LineSegment(V(-20.3, 11.7, 0), V(-16.7, 10.1, 0)), False)
sketch3.addGeometry(Part.LineSegment(V(-16.7, 10.1, 0), V(-22.2, -0.6, 0)), False)
sketch3.addGeometry(Part.LineSegment(V(-22.2, -0.6, 0), V(-30.2, 2.8, 0)), False)
sketch3.addGeometry(Part.ArcOfCircle(Part.Circle(V(-48.2, 1.7, 0), V(0, 0, 1), 18.1), math.radians(3), math.radians(130)), False)
sketch3.addGeometry(Part.LineSegment(V(-59.9, 15.6, 0), V(-71.3, 20.4, 0)), False)
sketch3.addGeometry(Part.ArcOfCircle(Part.Circle(V(-48.2, 1.7, 0), V(0, 0, 1), 29.7), math.radians(20), math.radians(141)), False)
sketch3.addConstraint(Sketcher.Constraint("Coincident", 0, 2, 1, 1))
sketch3.addConstraint(Sketcher.Constraint("Coincident", 1, 2, 2, 1))
sketch3.addConstraint(Sketcher.Constraint("Coincident", 2, 2, 3, 1))
sketch3.addConstraint(Sketcher.Constraint("Coincident", 3, 2, 4, 1))
sketch3.addConstraint(Sketcher.Constraint("Coincident", 4, 2, 5, 2))
sketch3.addConstraint(Sketcher.Constraint("Coincident", 5, 1, 0, 1))
sketch3.addConstraint(Sketcher.Constraint("Coincident", 5, 3, 3, 3))
sketch3.addConstraint(Sketcher.Constraint("Parallel", 0, 2))
sketch3.addConstraint(Sketcher.Constraint("Parallel", 2, 4))
sketch3.addConstraint(Sketcher.Constraint("Radius", 3, Q("18.11 mm")))
sketch3.addConstraint(Sketcher.Constraint("Radius", 5, Q("29.66 mm")))
sketch3.addConstraint(Sketcher.Constraint("Angle", 0, Q("-23.17 deg")))
sketch3.addConstraint(Sketcher.Constraint("DistanceY", -1, 1, 3, 3, Q("1.747541 mm")))
sketch3.addConstraint(Sketcher.Constraint("DistanceY", -1, 1, 0, 2, Q("10.12713 mm")))
sketch3.addConstraint(Sketcher.Constraint("DistanceX", 1, 2, -1, 1, Q("22.184948 mm")))
sketch3.addConstraint(Sketcher.Constraint("DistanceX", 4, 2, -1, 1, Q("71.283909 mm")))
sketch3.addConstraint(Sketcher.Constraint("DistanceY", -1, 1, 4, 2, Q("20.428712 mm")))
sketch3.addConstraint(Sketcher.Constraint("DistanceX", 3, 3, 0, 2, Q("31.53123 mm")))
sketch3.addConstraint(Sketcher.Constraint("DistanceX", 2, 2, 1, 2, Q("7.983908 mm")))
sketch3.setExpression("Constraints[9]", "Params.sketch3_radius")
sketch3.setExpression("Constraints[10]", "Params.sketch3_radius2")
pad3 = body.newObject("PartDesign::Pad", "Pad002")
pad3.Profile = sketch3
pad3.setExpression("Length", "Params.pad3_length")

# Sketch on an angled plane
sketch4 = body.newObject("Sketcher::SketchObject", "Sketch003")
sketch4.Placement = App.Placement(V(-18.284565, 0, -22.548474), App.Rotation(V(0.776721735, 0, -0.629843907), V(0, 1.000000001, 0), V(0.629843907, 0, 0.776721735), "ZXY"))
sketch4.addGeometry(Part.LineSegment(V(-60.1, 4, 0), V(-56.3, -1.2, 0)), False)
sketch4.addGeometry(Part.LineSegment(V(-56.3, -1.2, 0), V(-56.3, 4, 0)), False)
sketch4.addGeometry(Part.LineSegment(V(-56.3, 4, 0), V(-60.1, 4, 0)), False)
sketch4.addGeometry(Part.LineSegment(V(-38.6, -1.2, 0), V(-38.6, 4, 0)), True)  # axis
sketch4.addConstraint(Sketcher.Constraint("Coincident", 0, 2, 1, 1))
sketch4.addConstraint(Sketcher.Constraint("Coincident", 1, 2, 2, 1))
sketch4.addConstraint(Sketcher.Constraint("Coincident", 2, 2, 0, 1))
sketch4.addConstraint(Sketcher.Constraint("Vertical", 1))
sketch4.addConstraint(Sketcher.Constraint("Horizontal", 2))
sketch4.addConstraint(Sketcher.Constraint("Vertical", 3))
sketch4.addConstraint(Sketcher.Constraint("Horizontal", 0, 2, 3, 1))
sketch4.addConstraint(Sketcher.Constraint("Horizontal", 2, 2, 3, 2))
sketch4.addConstraint(Sketcher.Constraint("DistanceX", 2, 2, 2, 1, Q("3.8 mm")))
sketch4.addConstraint(Sketcher.Constraint("DistanceY", -1, 1, 1, 2, Q("4 mm")))
sketch4.addConstraint(Sketcher.Constraint("Angle", 0, Q("-54.02 deg")))
sketch4.addConstraint(Sketcher.Constraint("DistanceX", 0, 2, 3, 1, Q("17.7 mm")))
sketch4.addConstraint(Sketcher.Constraint("DistanceX", 0, 2, -1, 1, Q("56.274661 mm")))
sketch4.setExpression("Constraints[8]", "Params.sketch4_width")
groove = body.newObject("PartDesign::Groove", "Groove")
groove.Profile = sketch4
groove.ReferenceAxis = (sketch4, ["Axis0"])
groove.setExpression("Angle", "Params.groove_angle")

doc.recompute()
